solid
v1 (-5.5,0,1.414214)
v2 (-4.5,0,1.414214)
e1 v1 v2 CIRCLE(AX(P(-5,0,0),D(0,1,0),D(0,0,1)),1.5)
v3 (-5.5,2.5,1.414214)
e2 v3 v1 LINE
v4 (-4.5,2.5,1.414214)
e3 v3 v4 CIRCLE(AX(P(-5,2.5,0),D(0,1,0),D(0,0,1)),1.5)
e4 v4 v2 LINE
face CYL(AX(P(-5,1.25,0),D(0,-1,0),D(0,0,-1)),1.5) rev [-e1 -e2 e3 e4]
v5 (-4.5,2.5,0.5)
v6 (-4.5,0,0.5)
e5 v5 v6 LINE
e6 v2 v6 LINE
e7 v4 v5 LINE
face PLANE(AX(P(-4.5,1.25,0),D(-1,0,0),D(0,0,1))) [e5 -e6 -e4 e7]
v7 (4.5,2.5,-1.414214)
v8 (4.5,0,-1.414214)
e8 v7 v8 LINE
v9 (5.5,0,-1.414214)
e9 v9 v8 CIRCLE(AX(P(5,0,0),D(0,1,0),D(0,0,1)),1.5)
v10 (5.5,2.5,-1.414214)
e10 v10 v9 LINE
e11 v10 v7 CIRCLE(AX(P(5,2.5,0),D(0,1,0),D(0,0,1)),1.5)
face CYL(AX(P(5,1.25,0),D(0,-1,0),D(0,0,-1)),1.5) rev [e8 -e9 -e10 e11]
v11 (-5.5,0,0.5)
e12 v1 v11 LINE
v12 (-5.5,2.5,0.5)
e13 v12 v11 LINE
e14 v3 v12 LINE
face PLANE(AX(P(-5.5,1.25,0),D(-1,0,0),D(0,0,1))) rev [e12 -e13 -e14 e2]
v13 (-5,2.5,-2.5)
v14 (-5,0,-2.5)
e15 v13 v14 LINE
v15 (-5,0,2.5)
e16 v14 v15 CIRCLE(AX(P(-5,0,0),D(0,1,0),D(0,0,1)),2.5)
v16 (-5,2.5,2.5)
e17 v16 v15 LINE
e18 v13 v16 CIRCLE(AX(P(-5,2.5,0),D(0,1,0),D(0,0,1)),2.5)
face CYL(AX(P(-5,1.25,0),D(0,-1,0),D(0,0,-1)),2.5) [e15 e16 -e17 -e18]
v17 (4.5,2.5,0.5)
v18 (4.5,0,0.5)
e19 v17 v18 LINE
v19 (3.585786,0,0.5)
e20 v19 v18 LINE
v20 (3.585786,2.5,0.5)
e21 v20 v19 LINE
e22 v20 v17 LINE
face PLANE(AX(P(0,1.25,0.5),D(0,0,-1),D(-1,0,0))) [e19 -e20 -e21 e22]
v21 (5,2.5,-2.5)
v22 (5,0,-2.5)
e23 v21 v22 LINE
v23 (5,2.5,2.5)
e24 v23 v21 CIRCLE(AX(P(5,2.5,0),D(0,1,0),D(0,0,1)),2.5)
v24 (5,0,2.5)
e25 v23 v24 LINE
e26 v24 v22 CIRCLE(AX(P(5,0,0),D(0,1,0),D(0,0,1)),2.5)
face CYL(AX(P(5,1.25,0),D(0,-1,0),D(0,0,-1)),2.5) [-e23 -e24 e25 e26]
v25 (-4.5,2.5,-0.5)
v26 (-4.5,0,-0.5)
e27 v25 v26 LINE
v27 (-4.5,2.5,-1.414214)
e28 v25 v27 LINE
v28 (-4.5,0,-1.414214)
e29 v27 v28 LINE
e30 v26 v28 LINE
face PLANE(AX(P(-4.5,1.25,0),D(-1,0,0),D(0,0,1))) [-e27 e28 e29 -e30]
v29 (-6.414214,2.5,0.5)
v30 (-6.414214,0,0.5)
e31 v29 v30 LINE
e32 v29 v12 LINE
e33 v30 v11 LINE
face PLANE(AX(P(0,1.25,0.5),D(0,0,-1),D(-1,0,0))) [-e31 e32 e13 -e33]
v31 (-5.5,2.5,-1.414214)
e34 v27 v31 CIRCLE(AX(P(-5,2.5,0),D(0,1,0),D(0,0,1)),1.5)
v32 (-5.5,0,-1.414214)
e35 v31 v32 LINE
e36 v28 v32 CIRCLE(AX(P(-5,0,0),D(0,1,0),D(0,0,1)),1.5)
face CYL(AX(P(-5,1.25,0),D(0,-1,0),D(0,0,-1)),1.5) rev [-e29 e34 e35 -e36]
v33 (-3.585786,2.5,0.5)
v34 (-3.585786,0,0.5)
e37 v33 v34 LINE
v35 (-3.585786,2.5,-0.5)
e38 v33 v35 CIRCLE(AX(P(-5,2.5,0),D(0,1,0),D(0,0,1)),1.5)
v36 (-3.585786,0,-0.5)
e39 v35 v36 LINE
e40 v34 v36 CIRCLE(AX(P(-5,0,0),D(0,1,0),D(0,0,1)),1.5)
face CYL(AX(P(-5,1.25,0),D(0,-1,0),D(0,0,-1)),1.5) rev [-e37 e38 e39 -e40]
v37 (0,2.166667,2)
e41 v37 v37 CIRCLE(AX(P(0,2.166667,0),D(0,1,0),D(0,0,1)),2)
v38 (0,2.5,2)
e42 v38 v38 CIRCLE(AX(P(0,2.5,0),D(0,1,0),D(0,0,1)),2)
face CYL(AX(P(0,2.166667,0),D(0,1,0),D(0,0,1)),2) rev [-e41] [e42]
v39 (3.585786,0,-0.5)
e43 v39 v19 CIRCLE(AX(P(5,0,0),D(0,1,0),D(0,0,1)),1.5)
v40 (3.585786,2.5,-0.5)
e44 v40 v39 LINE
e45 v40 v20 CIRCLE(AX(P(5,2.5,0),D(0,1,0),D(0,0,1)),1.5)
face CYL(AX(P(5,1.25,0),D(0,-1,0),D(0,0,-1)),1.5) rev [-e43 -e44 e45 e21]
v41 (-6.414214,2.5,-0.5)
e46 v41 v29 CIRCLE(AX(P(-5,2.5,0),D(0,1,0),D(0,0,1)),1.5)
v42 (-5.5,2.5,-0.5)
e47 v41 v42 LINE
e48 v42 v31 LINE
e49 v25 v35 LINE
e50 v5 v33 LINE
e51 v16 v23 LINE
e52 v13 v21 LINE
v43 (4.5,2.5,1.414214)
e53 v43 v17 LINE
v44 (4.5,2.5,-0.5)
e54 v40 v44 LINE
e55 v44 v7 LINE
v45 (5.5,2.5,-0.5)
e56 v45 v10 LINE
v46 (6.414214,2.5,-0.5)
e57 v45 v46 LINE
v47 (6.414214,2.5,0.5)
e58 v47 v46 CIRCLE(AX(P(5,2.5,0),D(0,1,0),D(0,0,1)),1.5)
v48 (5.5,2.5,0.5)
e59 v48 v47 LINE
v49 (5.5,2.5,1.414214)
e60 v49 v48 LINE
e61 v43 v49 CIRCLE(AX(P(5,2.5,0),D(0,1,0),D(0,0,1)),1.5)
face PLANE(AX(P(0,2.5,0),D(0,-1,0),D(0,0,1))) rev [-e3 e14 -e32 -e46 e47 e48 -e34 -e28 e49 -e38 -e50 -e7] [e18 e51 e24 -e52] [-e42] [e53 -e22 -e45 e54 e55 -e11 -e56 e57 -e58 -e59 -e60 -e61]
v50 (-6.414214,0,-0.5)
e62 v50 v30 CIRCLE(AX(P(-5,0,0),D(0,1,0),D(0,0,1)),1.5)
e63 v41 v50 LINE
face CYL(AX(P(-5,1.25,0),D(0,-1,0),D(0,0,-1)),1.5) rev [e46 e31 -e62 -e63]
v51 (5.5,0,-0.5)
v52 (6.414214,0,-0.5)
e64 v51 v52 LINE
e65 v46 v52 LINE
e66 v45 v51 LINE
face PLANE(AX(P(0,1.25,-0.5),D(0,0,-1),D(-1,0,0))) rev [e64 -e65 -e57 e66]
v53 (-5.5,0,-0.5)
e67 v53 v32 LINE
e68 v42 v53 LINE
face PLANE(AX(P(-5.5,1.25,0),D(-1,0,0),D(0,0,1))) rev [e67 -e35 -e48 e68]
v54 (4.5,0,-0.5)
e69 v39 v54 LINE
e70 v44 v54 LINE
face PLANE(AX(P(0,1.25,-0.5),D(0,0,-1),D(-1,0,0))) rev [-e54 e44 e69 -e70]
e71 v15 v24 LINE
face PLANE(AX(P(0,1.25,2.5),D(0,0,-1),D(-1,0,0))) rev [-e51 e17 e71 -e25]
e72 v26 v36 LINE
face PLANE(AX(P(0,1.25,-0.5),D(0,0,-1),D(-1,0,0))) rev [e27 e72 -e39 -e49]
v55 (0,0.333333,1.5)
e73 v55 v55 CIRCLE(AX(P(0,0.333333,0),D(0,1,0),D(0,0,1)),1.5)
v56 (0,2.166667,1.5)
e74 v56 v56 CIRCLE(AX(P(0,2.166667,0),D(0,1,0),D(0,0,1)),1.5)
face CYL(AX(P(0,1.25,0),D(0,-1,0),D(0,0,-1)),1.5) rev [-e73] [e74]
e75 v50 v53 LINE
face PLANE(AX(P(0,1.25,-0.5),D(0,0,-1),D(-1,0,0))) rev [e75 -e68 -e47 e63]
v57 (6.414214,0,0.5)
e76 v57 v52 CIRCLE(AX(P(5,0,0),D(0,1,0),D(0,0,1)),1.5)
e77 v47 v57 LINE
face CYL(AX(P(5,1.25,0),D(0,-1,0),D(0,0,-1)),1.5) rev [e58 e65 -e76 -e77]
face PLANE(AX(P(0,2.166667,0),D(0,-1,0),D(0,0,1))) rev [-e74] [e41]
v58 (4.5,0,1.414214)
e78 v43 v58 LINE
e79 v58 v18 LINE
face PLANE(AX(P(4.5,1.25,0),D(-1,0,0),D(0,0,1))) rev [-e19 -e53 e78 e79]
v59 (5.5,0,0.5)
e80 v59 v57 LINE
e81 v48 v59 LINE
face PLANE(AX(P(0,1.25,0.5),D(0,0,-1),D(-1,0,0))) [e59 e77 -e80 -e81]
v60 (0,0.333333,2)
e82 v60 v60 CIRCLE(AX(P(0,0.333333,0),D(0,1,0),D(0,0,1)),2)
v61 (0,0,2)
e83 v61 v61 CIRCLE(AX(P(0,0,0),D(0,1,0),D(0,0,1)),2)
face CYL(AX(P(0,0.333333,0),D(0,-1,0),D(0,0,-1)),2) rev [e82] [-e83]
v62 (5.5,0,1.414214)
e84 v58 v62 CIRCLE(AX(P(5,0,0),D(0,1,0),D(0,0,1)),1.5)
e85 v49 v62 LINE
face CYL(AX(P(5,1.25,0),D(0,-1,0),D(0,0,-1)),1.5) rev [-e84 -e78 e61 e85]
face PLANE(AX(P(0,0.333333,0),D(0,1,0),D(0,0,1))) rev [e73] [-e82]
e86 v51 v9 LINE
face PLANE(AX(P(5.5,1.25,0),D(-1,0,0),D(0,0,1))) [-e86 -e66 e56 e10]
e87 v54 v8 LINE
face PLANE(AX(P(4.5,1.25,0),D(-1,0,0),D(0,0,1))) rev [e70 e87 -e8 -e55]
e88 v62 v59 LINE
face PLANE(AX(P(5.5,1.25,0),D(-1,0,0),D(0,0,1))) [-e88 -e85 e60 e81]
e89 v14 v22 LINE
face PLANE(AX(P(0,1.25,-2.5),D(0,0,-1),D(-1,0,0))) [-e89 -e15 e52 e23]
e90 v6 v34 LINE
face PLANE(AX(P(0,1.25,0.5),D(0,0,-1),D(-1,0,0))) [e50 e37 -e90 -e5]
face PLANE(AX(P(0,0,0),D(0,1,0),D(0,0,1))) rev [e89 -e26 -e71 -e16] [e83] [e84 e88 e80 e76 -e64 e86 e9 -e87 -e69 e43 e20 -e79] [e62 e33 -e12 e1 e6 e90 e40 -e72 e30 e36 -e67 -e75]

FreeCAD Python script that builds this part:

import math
import FreeCAD as App
import Part
import Sketcher
Q = App.Units.Quantity

doc = App.newDocument("Part")
params = doc.addObject("Spreadsheet::Sheet", "Params")
for row, (alias, value) in enumerate([
    ("sketch1_diameter", "3 mm"),
    ("sketch1_radius", "2.5 mm"),
    ("sketch1_width", "10 mm"),
    ("pad1_length", "1.25 mm"),
    ("sketch2_diameter", "4 mm"),
    ("sketch2_diameter2", "3 mm"),
    ("pocket1_length", "0.333333 mm"),
], start=1):
    params.set(f"A{row}", alias)
    params.set(f"B{row}", "=" + value)
    params.setAlias(f"B{row}", alias)

body = doc.addObject("PartDesign::Body", "Body")

# Sketch on XZ plane
sketch1 = doc.addObject("Sketcher::SketchObject", "Sketch")
body.addObject(sketch1)
sketch1.AttachmentSupport = (doc.XZ_Plane, [""])
sketch1.MapMode = "FlatFace"
sketch1.addGeometry([
    Part.ArcOfCircle(Part.Circle(App.Vector(-5, 0, 0), App.Vector(0, 0, 1), 2.5), math.radians(90), math.radians(270)),  # 0
    Part.LineSegment(App.Vector(-5, 2.5, 0), App.Vector(5, 2.5, 0)),  # 1
    Part.ArcOfCircle(Part.Circle(App.Vector(5, 0, 0), App.Vector(0, 0, 1), 2.5), math.radians(-90), math.radians(89.999999)),  # 2
    Part.LineSegment(App.Vector(5, -2.5, 0), App.Vector(-5, -2.5, 0)),  # 3
    Part.ArcOfCircle(Part.Circle(App.Vector(-5, 0, 0), App.Vector(0, 0, 1), 1.5), math.radians(-19.471221), math.radians(19.471221)),  # 4
    Part.LineSegment(App.Vector(-3.585786, 0.5, 0), App.Vector(-4.5, 0.5, 0)),  # 5
    Part.LineSegment(App.Vector(-4.5, 0.5, 0), App.Vector(-4.5, 1.414214, 0)),  # 6
    Part.ArcOfCircle(Part.Circle(App.Vector(-5, 0, 0), App.Vector(0, 0, 1), 1.5), math.radians(70.528779), math.radians(109.471221)),  # 7
    Part.LineSegment(App.Vector(-5.5, 1.414214, 0), App.Vector(-5.5, 0.5, 0)),  # 8
    Part.LineSegment(App.Vector(-5.5, 0.5, 0), App.Vector(-6.414214, 0.5, 0)),  # 9
    Part.ArcOfCircle(Part.Circle(App.Vector(-5, 0, 0), App.Vector(0, 0, 1), 1.5), math.radians(160.528779), math.radians(199.471221)),  # 10
    Part.LineSegment(App.Vector(-6.414214, -0.5, 0), App.Vector(-5.5, -0.5, 0)),  # 11
    Part.LineSegment(App.Vector(-5.5, -0.5, 0), App.Vector(-5.5, -1.414214, 0)),  # 12
    Part.ArcOfCircle(Part.Circle(App.Vector(-5, 0, 0), App.Vector(0, 0, 1), 1.5), math.radians(-109.471221), math.radians(-70.528779)),  # 13
    Part.LineSegment(App.Vector(-4.5, -1.414214, 0), App.Vector(-4.5, -0.5, 0)),  # 14
    Part.LineSegment(App.Vector(-4.5, -0.5, 0), App.Vector(-3.585786, -0.5, 0)),  # 15
    Part.Circle(App.Vector(0, 0, 0), App.Vector(0, 0, 1), 1.5),  # 16
    Part.LineSegment(App.Vector(3.585786, -0.5, 0), App.Vector(4.5, -0.5, 0)),  # 17
    Part.LineSegment(App.Vector(4.5, -0.5, 0), App.Vector(4.5, -1.414214, 0)),  # 18
    Part.ArcOfCircle(Part.Circle(App.Vector(5, 0, 0), App.Vector(0, 0, 1), 1.5), math.radians(-109.471221), math.radians(-70.528779)),  # 19
    Part.LineSegment(App.Vector(5.5, -1.414214, 0), App.Vector(5.5, -0.5, 0)),  # 20
    Part.LineSegment(App.Vector(5.5, -0.5, 0), App.Vector(6.414214, -0.5, 0)),  # 21
    Part.ArcOfCircle(Part.Circle(App.Vector(5, 0, 0), App.Vector(0, 0, 1), 1.5), math.radians(-19.471221), math.radians(19.471221)),  # 22
    Part.LineSegment(App.Vector(6.414214, 0.5, 0), App.Vector(5.5, 0.5, 0)),  # 23
    Part.LineSegment(App.Vector(5.5, 0.5, 0), App.Vector(5.5, 1.414214, 0)),  # 24
    Part.ArcOfCircle(Part.Circle(App.Vector(5, 0, 0), App.Vector(0, 0, 1), 1.5), math.radians(70.528779), math.radians(109.471221)),  # 25
    Part.LineSegment(App.Vector(4.5, 1.414214, 0), App.Vector(4.5, 0.5, 0)),  # 26
    Part.LineSegment(App.Vector(4.5, 0.5, 0), App.Vector(3.585786, 0.5, 0)),  # 27
    Part.ArcOfCircle(Part.Circle(App.Vector(5, 0, 0), App.Vector(0, 0, 1), 1.5), math.radians(160.528779), math.radians(199.471221)),  # 28
], False)
sketch1.addConstraint([
    Sketcher.Constraint("Tangent", 0, 1, 1, 1),
    Sketcher.Constraint("Tangent", 1, 2, 2, 2),
    Sketcher.Constraint("Tangent", 2, 1, 3, 1),
    Sketcher.Constraint("Tangent", 3, 2, 0, 2),
    Sketcher.Constraint("Coincident", 4, 2, 5, 1),
    Sketcher.Constraint("Coincident", 5, 2, 6, 1),
    Sketcher.Constraint("Coincident", 6, 2, 7, 1),
    Sketcher.Constraint("Coincident", 7, 2, 8, 1),
    Sketcher.Constraint("Coincident", 8, 2, 9, 1),
    Sketcher.Constraint("Coincident", 9, 2, 10, 1),
    Sketcher.Constraint("Coincident", 10, 2, 11, 1),
    Sketcher.Constraint("Coincident", 11, 2, 12, 1),
    Sketcher.Constraint("Coincident", 12, 2, 13, 1),
    Sketcher.Constraint("Coincident", 13, 2, 14, 1),
    Sketcher.Constraint("Coincident", 14, 2, 15, 1),
    Sketcher.Constraint("Coincident", 15, 2, 4, 1),
    Sketcher.Constraint("Coincident", 17, 2, 18, 1),
    Sketcher.Constraint("Coincident", 18, 2, 19, 1),
    Sketcher.Constraint("Coincident", 19, 2, 20, 1),
    Sketcher.Constraint("Coincident", 20, 2, 21, 1),
    Sketcher.Constraint("Coincident", 21, 2, 22, 1),
    Sketcher.Constraint("Coincident", 22, 2, 23, 1),
    Sketcher.Constraint("Coincident", 23, 2, 24, 1),
    Sketcher.Constraint("Coincident", 24, 2, 25, 1),
    Sketcher.Constraint("Coincident", 25, 2, 26, 1),
    Sketcher.Constraint("Coincident", 26, 2, 27, 1),
    Sketcher.Constraint("Coincident", 27, 2, 28, 1),
    Sketcher.Constraint("Coincident", 28, 2, 17, 1),
    Sketcher.Constraint("Horizontal", 1),
    Sketcher.Constraint("Horizontal", 3),
    Sketcher.Constraint("Horizontal", 5),
    Sketcher.Constraint("Vertical", 6),
    Sketcher.Constraint("Vertical", 8),
    Sketcher.Constraint("Horizontal", 9),
    Sketcher.Constraint("Horizontal", 11),
    Sketcher.Constraint("Vertical", 12),
    Sketcher.Constraint("Vertical", 14),
    Sketcher.Constraint("Horizontal", 15),
    Sketcher.Constraint("Horizontal", 17),
    Sketcher.Constraint("Vertical", 18),
    Sketcher.Constraint("Vertical", 20),
    Sketcher.Constraint("Horizontal", 21),
    Sketcher.Constraint("Horizontal", 23),
    Sketcher.Constraint("Vertical", 24),
    Sketcher.Constraint("Vertical", 26),
    Sketcher.Constraint("Horizontal", 27),
    Sketcher.Constraint("Coincident", 16, 3, -1, 1),
    Sketcher.Constraint("Coincident", 4, 3, 0, 3),
    Sketcher.Constraint("Coincident", 7, 3, 0, 3),
    Sketcher.Constraint("Coincident", 10, 3, 0, 3),
    Sketcher.Constraint("Coincident", 13, 3, 0, 3),
    Sketcher.Constraint("Coincident", 19, 3, 2, 3),
    Sketcher.Constraint("Coincident", 22, 3, 2, 3),
    Sketcher.Constraint("Coincident", 25, 3, 2, 3),
    Sketcher.Constraint("Coincident", 28, 3, 2, 3),
    Sketcher.Constraint("Equal", 4, 7),
    Sketcher.Constraint("Equal", 7, 10),
    Sketcher.Constraint("Equal", 10, 13),
    Sketcher.Constraint("Equal", 13, 16),
    Sketcher.Constraint("Equal", 16, 19),
    Sketcher.Constraint("Equal", 19, 22),
    Sketcher.Constraint("Equal", 22, 25),
    Sketcher.Constraint("Equal", 25, 28),
    Sketcher.Constraint("Symmetric", 0, 3, 2, 3, -1, 1),
    Sketcher.Constraint("Symmetric", 5, 2, 17, 2, -1, 1),
    Sketcher.Constraint("Symmetric", 8, 2, 20, 2, -1, 1),
    Sketcher.Constraint("Symmetric", 11, 2, 23, 2, -1, 1),
    Sketcher.Constraint("Symmetric", 14, 2, 26, 2, -1, 1),
    Sketcher.Constraint("Symmetric", 14, 2, 17, 2, -2),
    Sketcher.Constraint("Symmetric", 11, 2, 20, 2, -2),
    Sketcher.Constraint("Horizontal", 6, 2, 7, 2),
    Sketcher.Constraint("Horizontal", 5, 2, 8, 2),
    Sketcher.Constraint("Equal", 27, 6),
    Sketcher.Constraint("Diameter", 16, Q("3 mm")),
    Sketcher.Constraint("Radius", 0, Q("2.5 mm")),
    Sketcher.Constraint("DistanceX", 1, 1, 1, 2, Q("10 mm")),
    Sketcher.Constraint("DistanceX", 7, 2, 6, 2, Q("1 mm")),
])
sketch1.setExpression("Constraints[73]", "Params.sketch1_diameter")
sketch1.setExpression("Constraints[74]", "Params.sketch1_radius")
sketch1.setExpression("Constraints[75]", "Params.sketch1_width")
pad1 = doc.addObject("PartDesign::Pad", "Pad")
body.addObject(pad1)
pad1.Profile = sketch1
pad1.setExpression("Length", "Params.pad1_length")
pad1.Reversed = True

# Sketch on XZ plane
sketch2 = doc.addObject("Sketcher::SketchObject", "Sketch001")
body.addObject(sketch2)
sketch2.AttachmentSupport = (doc.XZ_Plane, [""])
sketch2.MapMode = "FlatFace"
sketch2.addGeometry([
    Part.Circle(App.Vector(0, 0, 0), App.Vector(0, 0, 1), 2),
    Part.Circle(App.Vector(0, 0, 0), App.Vector(0, 0, 1), 1.5),
], False)
sketch2.addConstraint([
    Sketcher.Constraint("Coincident", 0, 3, -1, 1),
    Sketcher.Constraint("Coincident", 1, 3, -1, 1),
    Sketcher.Constraint("Diameter", 0, Q("4 mm")),
    Sketcher.Constraint("Diameter", 1, Q("3 mm")),
])
sketch2.setExpression("Constraints[2]", "Params.sketch2_diameter")
sketch2.setExpression("Constraints[3]", "Params.sketch2_diameter2")
pocket1 = doc.addObject("PartDesign::Pocket", "Pocket")
body.addObject(pocket1)
pocket1.Profile = sketch2
pocket1.setExpression("Length", "Params.pocket1_length")
doc.recompute()

datumplane = doc.addObject("PartDesign::Plane", "DatumPlane")
body.addObject(datumplane)
datumplane.AttachmentSupport = (doc.XZ_Plane, [""])
datumplane.MapMode = "FlatFace"
datumplane.AttachmentOffset = App.Placement(App.Vector(0, 0, -1.25), App.Rotation())
mirrored = doc.addObject("PartDesign::Mirrored", "Mirrored")
body.addObject(mirrored)
mirrored.Originals = [pad1, pocket1]
mirrored.MirrorPlane = (datumplane, [""])
body.Tip = mirrored

doc.recompute()
